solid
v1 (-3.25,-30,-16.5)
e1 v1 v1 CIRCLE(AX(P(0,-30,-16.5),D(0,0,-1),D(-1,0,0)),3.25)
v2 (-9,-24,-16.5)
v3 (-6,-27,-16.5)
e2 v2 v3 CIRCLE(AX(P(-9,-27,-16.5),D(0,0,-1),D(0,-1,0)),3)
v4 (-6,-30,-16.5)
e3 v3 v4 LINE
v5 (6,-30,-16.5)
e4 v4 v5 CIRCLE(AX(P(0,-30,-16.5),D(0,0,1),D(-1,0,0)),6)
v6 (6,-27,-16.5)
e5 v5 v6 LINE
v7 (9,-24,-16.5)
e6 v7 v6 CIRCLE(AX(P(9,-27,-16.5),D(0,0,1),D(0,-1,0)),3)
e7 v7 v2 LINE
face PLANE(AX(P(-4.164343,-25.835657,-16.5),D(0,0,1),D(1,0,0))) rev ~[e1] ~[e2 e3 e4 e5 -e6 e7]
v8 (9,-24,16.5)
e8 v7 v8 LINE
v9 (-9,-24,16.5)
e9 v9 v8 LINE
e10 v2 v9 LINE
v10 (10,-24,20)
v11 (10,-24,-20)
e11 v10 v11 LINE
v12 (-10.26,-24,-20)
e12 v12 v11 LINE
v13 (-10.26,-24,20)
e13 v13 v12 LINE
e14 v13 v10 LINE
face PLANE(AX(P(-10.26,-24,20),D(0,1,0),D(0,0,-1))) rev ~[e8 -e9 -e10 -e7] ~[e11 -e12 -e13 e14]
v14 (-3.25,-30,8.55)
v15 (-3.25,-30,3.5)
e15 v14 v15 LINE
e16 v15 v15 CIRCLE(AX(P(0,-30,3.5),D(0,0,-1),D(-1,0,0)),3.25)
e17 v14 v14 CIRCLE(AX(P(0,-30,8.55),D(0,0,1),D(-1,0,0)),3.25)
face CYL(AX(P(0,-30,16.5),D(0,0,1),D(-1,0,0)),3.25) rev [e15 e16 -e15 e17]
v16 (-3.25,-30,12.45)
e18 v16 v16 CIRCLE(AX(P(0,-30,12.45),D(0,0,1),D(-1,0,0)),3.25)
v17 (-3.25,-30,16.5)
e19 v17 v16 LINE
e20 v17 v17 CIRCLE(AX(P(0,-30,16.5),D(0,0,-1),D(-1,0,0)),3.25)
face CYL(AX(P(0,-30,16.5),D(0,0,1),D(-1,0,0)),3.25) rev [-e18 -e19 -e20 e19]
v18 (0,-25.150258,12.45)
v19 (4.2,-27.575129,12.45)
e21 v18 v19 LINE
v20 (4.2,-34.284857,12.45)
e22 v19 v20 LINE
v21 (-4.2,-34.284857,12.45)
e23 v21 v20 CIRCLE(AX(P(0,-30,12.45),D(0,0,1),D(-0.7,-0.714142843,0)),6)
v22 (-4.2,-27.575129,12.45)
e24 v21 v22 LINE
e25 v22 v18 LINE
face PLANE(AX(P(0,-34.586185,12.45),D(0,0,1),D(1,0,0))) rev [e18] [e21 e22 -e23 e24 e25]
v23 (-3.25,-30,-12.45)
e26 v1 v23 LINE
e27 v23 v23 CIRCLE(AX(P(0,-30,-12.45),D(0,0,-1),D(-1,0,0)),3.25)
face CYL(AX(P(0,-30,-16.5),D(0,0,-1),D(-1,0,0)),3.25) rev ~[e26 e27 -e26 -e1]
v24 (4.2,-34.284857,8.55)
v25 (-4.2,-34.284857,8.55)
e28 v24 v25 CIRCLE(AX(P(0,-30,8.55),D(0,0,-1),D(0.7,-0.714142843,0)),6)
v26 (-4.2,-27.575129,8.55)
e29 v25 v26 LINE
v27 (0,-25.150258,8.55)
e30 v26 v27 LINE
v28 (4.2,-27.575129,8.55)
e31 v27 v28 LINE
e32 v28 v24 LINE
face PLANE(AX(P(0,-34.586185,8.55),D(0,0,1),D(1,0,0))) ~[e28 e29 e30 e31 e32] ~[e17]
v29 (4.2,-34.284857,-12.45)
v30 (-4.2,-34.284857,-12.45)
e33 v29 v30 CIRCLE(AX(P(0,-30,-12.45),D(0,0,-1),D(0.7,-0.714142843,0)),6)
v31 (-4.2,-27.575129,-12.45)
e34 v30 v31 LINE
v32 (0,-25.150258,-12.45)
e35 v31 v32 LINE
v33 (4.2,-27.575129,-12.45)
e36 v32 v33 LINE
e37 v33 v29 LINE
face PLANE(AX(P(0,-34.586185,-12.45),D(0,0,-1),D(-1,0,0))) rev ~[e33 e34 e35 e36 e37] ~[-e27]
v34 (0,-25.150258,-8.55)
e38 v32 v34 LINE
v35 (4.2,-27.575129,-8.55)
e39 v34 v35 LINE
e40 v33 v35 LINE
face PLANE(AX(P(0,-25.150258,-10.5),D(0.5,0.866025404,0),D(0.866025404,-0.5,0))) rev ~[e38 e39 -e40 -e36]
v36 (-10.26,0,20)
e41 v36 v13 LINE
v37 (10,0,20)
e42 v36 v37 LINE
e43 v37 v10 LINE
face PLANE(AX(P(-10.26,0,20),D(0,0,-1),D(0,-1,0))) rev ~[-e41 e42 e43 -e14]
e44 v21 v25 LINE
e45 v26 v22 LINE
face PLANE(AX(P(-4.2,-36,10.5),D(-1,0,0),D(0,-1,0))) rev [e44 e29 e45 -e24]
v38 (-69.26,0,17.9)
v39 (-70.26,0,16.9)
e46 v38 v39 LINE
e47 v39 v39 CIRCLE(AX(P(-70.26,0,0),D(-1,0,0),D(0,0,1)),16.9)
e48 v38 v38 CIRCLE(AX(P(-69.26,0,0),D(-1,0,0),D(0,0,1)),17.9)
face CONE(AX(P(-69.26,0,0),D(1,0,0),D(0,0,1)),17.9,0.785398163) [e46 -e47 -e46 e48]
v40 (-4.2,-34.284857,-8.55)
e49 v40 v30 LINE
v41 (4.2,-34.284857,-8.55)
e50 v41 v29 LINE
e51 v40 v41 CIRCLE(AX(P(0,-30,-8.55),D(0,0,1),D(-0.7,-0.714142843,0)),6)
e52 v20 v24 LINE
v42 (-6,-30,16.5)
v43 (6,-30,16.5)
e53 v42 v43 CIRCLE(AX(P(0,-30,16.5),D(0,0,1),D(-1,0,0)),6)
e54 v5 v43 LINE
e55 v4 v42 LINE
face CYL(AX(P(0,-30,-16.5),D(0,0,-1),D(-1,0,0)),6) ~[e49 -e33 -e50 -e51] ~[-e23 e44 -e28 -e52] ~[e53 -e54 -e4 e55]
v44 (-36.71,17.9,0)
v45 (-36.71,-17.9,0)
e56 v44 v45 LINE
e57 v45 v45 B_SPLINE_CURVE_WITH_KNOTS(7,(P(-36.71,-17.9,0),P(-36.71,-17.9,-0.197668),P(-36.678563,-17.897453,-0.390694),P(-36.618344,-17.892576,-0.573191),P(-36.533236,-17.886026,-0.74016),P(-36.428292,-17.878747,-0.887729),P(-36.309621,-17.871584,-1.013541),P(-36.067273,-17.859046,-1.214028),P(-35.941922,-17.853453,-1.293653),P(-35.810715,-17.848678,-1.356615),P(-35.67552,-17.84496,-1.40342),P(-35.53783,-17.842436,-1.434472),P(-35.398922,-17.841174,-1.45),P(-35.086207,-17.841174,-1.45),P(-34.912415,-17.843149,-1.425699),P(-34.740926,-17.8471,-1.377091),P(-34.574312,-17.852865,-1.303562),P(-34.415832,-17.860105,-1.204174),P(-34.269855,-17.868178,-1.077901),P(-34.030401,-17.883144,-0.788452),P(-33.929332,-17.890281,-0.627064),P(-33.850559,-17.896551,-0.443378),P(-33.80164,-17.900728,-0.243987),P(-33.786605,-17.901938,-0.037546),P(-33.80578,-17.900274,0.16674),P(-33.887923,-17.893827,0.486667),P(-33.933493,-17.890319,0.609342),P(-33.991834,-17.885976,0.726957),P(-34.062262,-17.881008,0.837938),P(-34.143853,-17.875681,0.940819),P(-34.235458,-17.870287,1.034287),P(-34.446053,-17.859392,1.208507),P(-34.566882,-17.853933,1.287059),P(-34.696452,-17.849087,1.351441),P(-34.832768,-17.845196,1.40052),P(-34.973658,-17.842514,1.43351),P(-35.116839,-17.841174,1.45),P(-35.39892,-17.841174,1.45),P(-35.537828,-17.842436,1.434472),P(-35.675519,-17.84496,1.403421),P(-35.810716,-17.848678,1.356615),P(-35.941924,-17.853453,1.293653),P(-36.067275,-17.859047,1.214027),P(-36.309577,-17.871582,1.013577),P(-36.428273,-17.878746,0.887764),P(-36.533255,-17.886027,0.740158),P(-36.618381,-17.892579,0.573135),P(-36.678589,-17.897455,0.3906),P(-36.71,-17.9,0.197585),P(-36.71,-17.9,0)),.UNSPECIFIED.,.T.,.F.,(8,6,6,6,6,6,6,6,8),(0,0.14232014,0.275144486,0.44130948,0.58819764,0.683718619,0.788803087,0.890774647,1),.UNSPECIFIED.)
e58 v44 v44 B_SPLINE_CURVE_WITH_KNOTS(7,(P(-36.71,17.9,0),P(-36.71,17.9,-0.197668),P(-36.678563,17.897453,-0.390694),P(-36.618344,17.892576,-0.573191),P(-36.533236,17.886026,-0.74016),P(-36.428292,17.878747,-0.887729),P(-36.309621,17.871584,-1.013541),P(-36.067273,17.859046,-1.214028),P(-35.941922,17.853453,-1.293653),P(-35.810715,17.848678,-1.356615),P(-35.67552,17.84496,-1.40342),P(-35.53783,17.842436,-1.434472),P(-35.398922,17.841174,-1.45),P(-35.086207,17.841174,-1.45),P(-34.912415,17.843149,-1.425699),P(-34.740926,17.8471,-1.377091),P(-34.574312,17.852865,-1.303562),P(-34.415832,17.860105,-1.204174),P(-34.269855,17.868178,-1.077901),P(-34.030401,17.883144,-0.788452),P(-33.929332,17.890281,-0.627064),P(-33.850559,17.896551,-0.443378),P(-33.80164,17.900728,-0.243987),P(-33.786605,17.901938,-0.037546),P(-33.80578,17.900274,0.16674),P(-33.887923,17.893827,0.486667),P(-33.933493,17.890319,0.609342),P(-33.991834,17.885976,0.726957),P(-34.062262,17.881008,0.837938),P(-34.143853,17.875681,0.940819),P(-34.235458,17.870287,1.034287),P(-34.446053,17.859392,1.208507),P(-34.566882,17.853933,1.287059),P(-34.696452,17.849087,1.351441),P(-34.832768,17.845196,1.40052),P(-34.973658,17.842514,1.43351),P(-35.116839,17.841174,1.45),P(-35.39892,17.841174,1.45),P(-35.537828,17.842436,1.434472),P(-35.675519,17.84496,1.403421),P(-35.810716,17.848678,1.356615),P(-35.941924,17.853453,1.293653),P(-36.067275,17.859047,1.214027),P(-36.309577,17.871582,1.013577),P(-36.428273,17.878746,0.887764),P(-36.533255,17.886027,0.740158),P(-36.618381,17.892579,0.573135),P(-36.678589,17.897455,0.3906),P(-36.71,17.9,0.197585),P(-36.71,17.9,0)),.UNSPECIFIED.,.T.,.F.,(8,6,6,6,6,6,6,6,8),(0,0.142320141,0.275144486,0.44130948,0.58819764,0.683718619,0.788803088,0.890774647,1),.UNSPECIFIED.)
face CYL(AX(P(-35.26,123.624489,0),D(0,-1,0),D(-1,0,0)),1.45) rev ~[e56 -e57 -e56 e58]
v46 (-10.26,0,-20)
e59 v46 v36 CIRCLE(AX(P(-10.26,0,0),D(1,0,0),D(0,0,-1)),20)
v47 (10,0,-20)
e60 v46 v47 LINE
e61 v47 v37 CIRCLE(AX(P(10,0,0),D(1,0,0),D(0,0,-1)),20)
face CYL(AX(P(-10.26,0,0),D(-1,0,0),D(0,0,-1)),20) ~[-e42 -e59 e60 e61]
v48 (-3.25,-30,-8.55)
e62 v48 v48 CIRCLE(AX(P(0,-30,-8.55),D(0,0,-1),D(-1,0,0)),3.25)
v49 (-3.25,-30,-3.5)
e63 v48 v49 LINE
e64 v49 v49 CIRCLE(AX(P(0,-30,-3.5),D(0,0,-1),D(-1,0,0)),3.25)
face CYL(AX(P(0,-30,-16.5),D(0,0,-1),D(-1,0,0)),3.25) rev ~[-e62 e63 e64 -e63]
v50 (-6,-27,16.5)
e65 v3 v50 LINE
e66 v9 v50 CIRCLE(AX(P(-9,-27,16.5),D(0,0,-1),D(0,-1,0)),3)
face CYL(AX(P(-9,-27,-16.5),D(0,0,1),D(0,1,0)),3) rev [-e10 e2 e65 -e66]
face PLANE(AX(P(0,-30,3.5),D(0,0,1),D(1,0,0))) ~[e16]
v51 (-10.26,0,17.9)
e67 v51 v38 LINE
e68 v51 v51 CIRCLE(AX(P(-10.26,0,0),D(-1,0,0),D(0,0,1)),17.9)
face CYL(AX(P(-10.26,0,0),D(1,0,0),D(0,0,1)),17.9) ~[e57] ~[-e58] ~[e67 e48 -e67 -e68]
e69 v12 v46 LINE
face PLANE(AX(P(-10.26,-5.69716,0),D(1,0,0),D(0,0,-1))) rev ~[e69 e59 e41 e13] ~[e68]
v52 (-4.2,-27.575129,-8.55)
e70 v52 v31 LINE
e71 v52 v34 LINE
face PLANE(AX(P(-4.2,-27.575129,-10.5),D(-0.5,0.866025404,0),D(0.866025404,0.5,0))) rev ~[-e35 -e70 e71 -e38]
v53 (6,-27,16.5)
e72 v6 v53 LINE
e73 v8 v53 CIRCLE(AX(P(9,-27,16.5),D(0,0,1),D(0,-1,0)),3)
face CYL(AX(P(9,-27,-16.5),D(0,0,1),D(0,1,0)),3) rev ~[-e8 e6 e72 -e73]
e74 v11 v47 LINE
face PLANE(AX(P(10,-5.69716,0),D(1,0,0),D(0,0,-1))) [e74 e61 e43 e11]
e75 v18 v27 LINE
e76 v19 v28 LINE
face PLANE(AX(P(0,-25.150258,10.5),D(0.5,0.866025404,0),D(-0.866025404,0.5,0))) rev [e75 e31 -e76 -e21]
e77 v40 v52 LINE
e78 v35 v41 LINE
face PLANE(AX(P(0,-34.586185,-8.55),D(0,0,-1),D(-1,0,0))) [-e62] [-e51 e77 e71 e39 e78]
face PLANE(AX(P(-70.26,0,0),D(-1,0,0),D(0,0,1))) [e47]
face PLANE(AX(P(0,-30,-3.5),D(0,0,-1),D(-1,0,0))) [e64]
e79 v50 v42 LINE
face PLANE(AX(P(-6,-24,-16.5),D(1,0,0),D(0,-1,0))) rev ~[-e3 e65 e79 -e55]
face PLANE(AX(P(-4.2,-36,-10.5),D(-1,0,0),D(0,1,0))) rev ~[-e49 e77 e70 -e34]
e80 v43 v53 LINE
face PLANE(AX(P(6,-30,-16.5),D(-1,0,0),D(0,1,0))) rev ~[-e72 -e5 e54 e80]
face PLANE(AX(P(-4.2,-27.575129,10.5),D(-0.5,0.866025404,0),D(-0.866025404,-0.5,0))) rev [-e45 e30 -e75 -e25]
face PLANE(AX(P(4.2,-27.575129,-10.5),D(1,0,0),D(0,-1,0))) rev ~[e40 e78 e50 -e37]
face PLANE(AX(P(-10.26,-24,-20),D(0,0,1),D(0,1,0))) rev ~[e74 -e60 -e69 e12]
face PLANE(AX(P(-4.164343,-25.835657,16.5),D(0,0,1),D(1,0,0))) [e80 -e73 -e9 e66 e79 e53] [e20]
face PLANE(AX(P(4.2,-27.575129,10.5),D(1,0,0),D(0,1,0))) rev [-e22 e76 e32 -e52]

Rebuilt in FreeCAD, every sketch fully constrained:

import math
import FreeCAD as App
import Part
import Sketcher
Q = App.Units.Quantity


def edges_at(feature, points):
    """Names of the edges that pass closest to the given points."""
    edges = feature.Shape.Edges
    near = lambda p: min(range(len(edges)), key=lambda i: edges[i].distToShape(Part.Vertex(*p))[0])
    return sorted({f"Edge{near(p) + 1}" for p in points})

doc = App.newDocument("Part")
body = doc.addObject("PartDesign::Body", "Body")

# Sketch on YZ plane
sketch1 = body.newObject("Sketcher::SketchObject", "Sketch")
sketch1.AttachmentSupport = (doc.getObject("YZ_Plane"), [""])
sketch1.MapMode = "FlatFace"
sketch1.addGeometry(Part.LineSegment(App.Vector(-24, -20, 0), App.Vector(0, -20, 0)), False)
sketch1.addGeometry(Part.ArcOfCircle(Part.Circle(App.Vector(0, 0, 0), App.Vector(0, 0, 1), 20), math.radians(-90), math.radians(90)), False)
sketch1.addGeometry(Part.LineSegment(App.Vector(0, 20, 0), App.Vector(-24, 20, 0)), False)
sketch1.addGeometry(Part.LineSegment(App.Vector(-24, 20, 0), App.Vector(-24, -20, 0)), False)
sketch1.addConstraint(Sketcher.Constraint("Tangent", 0, 2, 1, 1))
sketch1.addConstraint(Sketcher.Constraint("Tangent", 1, 2, 2, 1))
sketch1.addConstraint(Sketcher.Constraint("Coincident", 2, 2, 3, 1))
sketch1.addConstraint(Sketcher.Constraint("Coincident", 3, 2, 0, 1))
sketch1.addConstraint(Sketcher.Constraint("Horizontal", 0))
sketch1.addConstraint(Sketcher.Constraint("Horizontal", 2))
sketch1.addConstraint(Sketcher.Constraint("Vertical", 3))
sketch1.addConstraint(Sketcher.Constraint("Coincident", 1, 3, -1, 1))
sketch1.addConstraint(Sketcher.Constraint("Radius", 1, Q("20 mm")))
sketch1.addConstraint(Sketcher.Constraint("DistanceX", 0, 1, 0, 2, Q("24 mm")))
pad1 = body.newObject("PartDesign::Pad", "Pad")
pad1.Profile = sketch1
pad1.Type = "TwoLengths"
pad1.Length = 10
pad1.Length2 = 10.26

# Sketch on YZ plane
sketch2 = body.newObject("Sketcher::SketchObject", "Sketch001")
sketch2.AttachmentSupport = (doc.getObject("YZ_Plane"), [""])
sketch2.MapMode = "FlatFace"
sketch2.AttachmentOffset = App.Placement(App.Vector(0, 0, -10.26), App.Rotation())
sketch2.addGeometry(Part.Circle(App.Vector(0, 0, 0), App.Vector(0, 0, 1), 17.9), False)
sketch2.addConstraint(Sketcher.Constraint("Coincident", 0, 3, -1, 1))
sketch2.addConstraint(Sketcher.Constraint("Diameter", 0, Q("35.8 mm")))
pad2 = body.newObject("PartDesign::Pad", "Pad001")
pad2.Profile = sketch2
pad2.Length = 60
pad2.Reversed = True

# Sketch on XY plane
sketch3 = body.newObject("Sketcher::SketchObject", "Sketch002")
sketch3.AttachmentSupport = (doc.getObject("XY_Plane"), [""])
sketch3.MapMode = "FlatFace"
sketch3.addGeometry(Part.LineSegment(App.Vector(-6, -24, 0), App.Vector(-6, -30, 0)), False)
sketch3.addGeometry(Part.ArcOfCircle(Part.Circle(App.Vector(0, -30, 0), App.Vector(0, 0, 1), 6), math.radians(180), math.radians(360)), False)
sketch3.addGeometry(Part.LineSegment(App.Vector(6, -30, 0), App.Vector(6, -24, 0)), False)
sketch3.addGeometry(Part.LineSegment(App.Vector(6, -24, 0), App.Vector(-6, -24, 0)), False)
sketch3.addConstraint(Sketcher.Constraint("Tangent", 0, 2, 1, 1))
sketch3.addConstraint(Sketcher.Constraint("Tangent", 1, 2, 2, 1))
sketch3.addConstraint(Sketcher.Constraint("Coincident", 2, 2, 3, 1))
sketch3.addConstraint(Sketcher.Constraint("Coincident", 3, 2, 0, 1))
sketch3.addConstraint(Sketcher.Constraint("Vertical", 0))
sketch3.addConstraint(Sketcher.Constraint("Vertical", 2))
sketch3.addConstraint(Sketcher.Constraint("Horizontal", 3))
sketch3.addConstraint(Sketcher.Constraint("PointOnObject", 1, 3, -2))
sketch3.addConstraint(Sketcher.Constraint("Radius", 1, Q("6 mm")))
sketch3.addConstraint(Sketcher.Constraint("DistanceY", 0, 2, 0, 1, Q("6 mm")))
sketch3.addConstraint(Sketcher.Constraint("DistanceY", 1, 3, -1, 1, Q("30 mm")))
pad3 = body.newObject("PartDesign::Pad", "Pad002")
pad3.Profile = sketch3
pad3.Type = "TwoLengths"
pad3.Length = 16.5
pad3.Length2 = 16.5

# Sketch on XY plane
sketch4 = body.newObject("Sketcher::SketchObject", "Sketch003")
sketch4.AttachmentSupport = (doc.getObject("XY_Plane"), [""])
sketch4.MapMode = "FlatFace"
sketch4.AttachmentOffset = App.Placement(App.Vector(0, 0, -16.5), App.Rotation())
sketch4.addGeometry(Part.Circle(App.Vector(0, -30, 0), App.Vector(0, 0, 1), 3.25), False)
sketch4.addConstraint(Sketcher.Constraint("PointOnObject", 0, 3, -2))
sketch4.addConstraint(Sketcher.Constraint("Diameter", 0, Q("6.5 mm")))
sketch4.addConstraint(Sketcher.Constraint("DistanceY", 0, 3, -1, 1, Q("30 mm")))
pocket1 = body.newObject("PartDesign::Pocket", "Pocket")
pocket1.Profile = sketch4
pocket1.Length = 13
pocket1.Reversed = True
doc.recompute()

mirrored = body.newObject("PartDesign::Mirrored", "Mirrored")
mirrored.Originals = [pocket1]
mirrored.MirrorPlane = (doc.getObject("XY_Plane"), [""])
body.Tip = mirrored

# Sketch on XY plane
sketch5 = body.newObject("Sketcher::SketchObject", "Sketch004")
sketch5.AttachmentSupport = (doc.getObject("XY_Plane"), [""])
sketch5.MapMode = "FlatFace"
sketch5.AttachmentOffset = App.Placement(App.Vector(0, 0, -10.5), App.Rotation())
sketch5.addGeometry(Part.LineSegment(App.Vector(4.2, -36, 0), App.Vector(-4.2, -36, 0)), False)
sketch5.addGeometry(Part.LineSegment(App.Vector(-4.2, -36, 0), App.Vector(-4.2, -27.575129, 0)), False)
sketch5.addGeometry(Part.LineSegment(App.Vector(-4.2, -27.575129, 0), App.Vector(0, -25.150258, 0)), False)
sketch5.addGeometry(Part.LineSegment(App.Vector(0, -25.150258, 0), App.Vector(4.2, -27.575129, 0)), False)
sketch5.addGeometry(Part.LineSegment(App.Vector(4.2, -27.575129, 0), App.Vector(4.2, -36, 0)), False)
sketch5.addConstraint(Sketcher.Constraint("Coincident", 0, 2, 1, 1))
sketch5.addConstraint(Sketcher.Constraint("Coincident", 1, 2, 2, 1))
sketch5.addConstraint(Sketcher.Constraint("Coincident", 2, 2, 3, 1))
sketch5.addConstraint(Sketcher.Constraint("Coincident", 3, 2, 4, 1))
sketch5.addConstraint(Sketcher.Constraint("Coincident", 4, 2, 0, 1))
sketch5.addConstraint(Sketcher.Constraint("Horizontal", 0))
sketch5.addConstraint(Sketcher.Constraint("Vertical", 1))
sketch5.addConstraint(Sketcher.Constraint("Vertical", 4))
sketch5.addConstraint(Sketcher.Constraint("Symmetric", 1, 2, 3, 2, -2))
sketch5.addConstraint(Sketcher.Constraint("PointOnObject", 2, 2, -2))
sketch5.addConstraint(Sketcher.Constraint("Angle", 2, Q("30 deg")))
sketch5.addConstraint(Sketcher.Constraint("DistanceX", 0, 2, 0, 1, Q("8.4 mm")))
sketch5.addConstraint(Sketcher.Constraint("DistanceY", 0, 2, -1, 1, Q("36 mm")))
sketch5.addConstraint(Sketcher.Constraint("DistanceY", 1, 1, 1, 2, Q("8.424871 mm")))
pocket2 = body.newObject("PartDesign::Pocket", "Pocket001")
pocket2.Profile = sketch5
pocket2.Length = 3.9
pocket2.Midplane = True
doc.recompute()

mirrored2 = body.newObject("PartDesign::Mirrored", "Mirrored001")
mirrored2.Originals = [pocket2]
mirrored2.MirrorPlane = (doc.getObject("XY_Plane"), [""])
body.Tip = mirrored2
doc.recompute()

fillet = body.newObject("PartDesign::Fillet", "Fillet")
fillet.Base = (mirrored2, edges_at(mirrored2, [(-6, -24, 0), (6, -24, 0)]))
fillet.Radius = 3

# Sketch on XZ plane
sketch6 = body.newObject("Sketcher::SketchObject", "Sketch005")
sketch6.AttachmentSupport = (doc.getObject("XZ_Plane"), [""])
sketch6.MapMode = "FlatFace"
sketch6.AttachmentOffset = App.Placement(App.Vector(0, 0, -17.9), App.Rotation())
sketch6.addGeometry(Part.Circle(App.Vector(-35.26, 0, 0), App.Vector(0, 0, 1), 1.45), False)
sketch6.addConstraint(Sketcher.Constraint("PointOnObject", 0, 3, -1))
sketch6.addConstraint(Sketcher.Constraint("Diameter", 0, Q("2.9 mm")))
sketch6.addConstraint(Sketcher.Constraint("DistanceX", 0, 3, -1, 1, Q("35.26 mm")))
doc.recompute()
hole = body.newObject("PartDesign::Hole", "Hole")
hole.Profile = sketch6
hole.ThreadType = "None"
hole.Diameter = 2.9
hole.DepthType = "ThroughAll"
hole.Reversed = True
doc.recompute()

chamfer = body.newObject("PartDesign::Chamfer", "Chamfer")
chamfer.Base = (hole, edges_at(hole, [(-70.26, 0, -17.9)]))
chamfer.Size = 1

doc.recompute()
